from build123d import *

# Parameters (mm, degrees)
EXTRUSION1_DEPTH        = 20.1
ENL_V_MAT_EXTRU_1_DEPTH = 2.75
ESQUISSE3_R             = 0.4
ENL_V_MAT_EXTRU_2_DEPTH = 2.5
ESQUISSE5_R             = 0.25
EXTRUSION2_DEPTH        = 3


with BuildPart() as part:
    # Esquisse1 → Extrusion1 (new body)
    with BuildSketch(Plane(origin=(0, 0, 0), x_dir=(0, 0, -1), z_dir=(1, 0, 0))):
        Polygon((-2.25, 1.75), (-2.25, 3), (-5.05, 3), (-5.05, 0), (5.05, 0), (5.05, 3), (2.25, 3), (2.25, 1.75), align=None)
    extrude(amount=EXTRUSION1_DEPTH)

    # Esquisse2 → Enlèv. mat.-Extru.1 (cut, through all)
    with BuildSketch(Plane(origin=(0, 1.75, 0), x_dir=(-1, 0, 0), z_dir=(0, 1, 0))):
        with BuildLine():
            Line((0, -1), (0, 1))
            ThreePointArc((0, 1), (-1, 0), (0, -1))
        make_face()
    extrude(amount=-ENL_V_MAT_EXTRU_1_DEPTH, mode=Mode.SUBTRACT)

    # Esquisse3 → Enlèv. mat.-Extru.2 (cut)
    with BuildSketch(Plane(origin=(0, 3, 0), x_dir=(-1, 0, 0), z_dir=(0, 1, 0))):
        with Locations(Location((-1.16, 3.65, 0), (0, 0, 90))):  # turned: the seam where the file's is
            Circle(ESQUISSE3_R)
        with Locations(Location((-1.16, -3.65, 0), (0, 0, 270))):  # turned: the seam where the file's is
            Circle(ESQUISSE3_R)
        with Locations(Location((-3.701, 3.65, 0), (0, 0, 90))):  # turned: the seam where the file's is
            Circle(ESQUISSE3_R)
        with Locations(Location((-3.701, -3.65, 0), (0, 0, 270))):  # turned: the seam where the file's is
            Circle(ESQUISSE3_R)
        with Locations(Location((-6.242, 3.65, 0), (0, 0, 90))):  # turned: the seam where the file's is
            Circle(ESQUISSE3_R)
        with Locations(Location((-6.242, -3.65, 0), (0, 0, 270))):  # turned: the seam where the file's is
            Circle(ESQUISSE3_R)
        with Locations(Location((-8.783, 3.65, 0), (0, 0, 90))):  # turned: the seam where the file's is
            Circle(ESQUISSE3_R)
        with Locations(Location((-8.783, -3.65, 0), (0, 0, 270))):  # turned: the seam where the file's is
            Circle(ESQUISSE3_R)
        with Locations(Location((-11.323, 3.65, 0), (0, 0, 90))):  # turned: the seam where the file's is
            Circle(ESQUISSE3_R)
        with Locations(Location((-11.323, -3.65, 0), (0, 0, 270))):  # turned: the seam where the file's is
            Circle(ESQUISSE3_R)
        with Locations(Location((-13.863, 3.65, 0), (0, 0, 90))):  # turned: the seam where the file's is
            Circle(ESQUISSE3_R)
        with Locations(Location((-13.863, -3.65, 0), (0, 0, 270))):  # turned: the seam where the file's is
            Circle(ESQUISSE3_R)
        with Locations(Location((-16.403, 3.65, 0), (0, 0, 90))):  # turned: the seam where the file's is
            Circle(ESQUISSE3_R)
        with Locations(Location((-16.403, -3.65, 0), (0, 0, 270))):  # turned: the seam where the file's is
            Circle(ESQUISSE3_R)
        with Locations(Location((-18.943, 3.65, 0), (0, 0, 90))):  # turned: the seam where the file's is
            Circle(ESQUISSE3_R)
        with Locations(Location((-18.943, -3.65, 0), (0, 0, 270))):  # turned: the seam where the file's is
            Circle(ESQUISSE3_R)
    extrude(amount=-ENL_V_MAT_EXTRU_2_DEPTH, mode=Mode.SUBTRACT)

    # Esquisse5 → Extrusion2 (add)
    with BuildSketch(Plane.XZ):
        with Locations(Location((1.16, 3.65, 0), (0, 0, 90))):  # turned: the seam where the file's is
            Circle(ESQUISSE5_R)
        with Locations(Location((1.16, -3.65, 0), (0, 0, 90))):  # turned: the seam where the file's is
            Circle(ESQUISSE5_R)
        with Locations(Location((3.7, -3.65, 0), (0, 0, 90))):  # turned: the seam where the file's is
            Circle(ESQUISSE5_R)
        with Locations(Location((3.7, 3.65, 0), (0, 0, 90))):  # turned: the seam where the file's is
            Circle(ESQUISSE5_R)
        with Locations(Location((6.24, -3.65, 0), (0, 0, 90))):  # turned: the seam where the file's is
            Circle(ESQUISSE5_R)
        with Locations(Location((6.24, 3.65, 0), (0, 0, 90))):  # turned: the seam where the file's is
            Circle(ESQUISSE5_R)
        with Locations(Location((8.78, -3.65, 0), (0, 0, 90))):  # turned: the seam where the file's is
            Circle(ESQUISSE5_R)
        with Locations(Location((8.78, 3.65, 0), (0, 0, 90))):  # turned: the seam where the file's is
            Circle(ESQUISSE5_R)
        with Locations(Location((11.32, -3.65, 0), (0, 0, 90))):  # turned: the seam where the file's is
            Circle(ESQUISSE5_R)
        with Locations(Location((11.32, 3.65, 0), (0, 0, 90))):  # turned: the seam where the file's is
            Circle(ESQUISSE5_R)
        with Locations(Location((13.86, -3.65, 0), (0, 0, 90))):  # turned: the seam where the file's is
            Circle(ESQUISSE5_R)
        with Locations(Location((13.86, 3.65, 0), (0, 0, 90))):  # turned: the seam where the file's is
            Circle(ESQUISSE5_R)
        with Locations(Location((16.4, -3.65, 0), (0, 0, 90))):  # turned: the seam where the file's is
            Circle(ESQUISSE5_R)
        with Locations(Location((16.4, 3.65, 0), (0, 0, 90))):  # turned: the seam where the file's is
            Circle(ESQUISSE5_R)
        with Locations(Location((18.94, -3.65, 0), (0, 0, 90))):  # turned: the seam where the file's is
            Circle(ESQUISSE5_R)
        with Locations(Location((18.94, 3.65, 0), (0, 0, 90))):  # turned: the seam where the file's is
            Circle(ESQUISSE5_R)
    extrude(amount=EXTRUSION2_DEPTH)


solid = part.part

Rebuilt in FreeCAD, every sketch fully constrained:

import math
import FreeCAD as App
import Part
import Sketcher

V = App.Vector
Q = App.Units.Quantity

doc = App.newDocument("Part")
body = doc.addObject("PartDesign::Body", "Body")

# Sketch on YZ plane
sketch1 = doc.addObject("Sketcher::SketchObject", "Sketch")
body.addObject(sketch1)
sketch1.AttachmentSupport = (doc.YZ_Plane, [""])
sketch1.MapMode = "FlatFace"
sketch1.addGeometry([
    Part.LineSegment(V(1.75, 2.25, 0), V(3, 2.25, 0)),  # 0
    Part.LineSegment(V(3, 2.25, 0), V(3, 5.05, 0)),  # 1
    Part.LineSegment(V(3, 5.05, 0), V(0, 5.05, 0)),  # 2
    Part.LineSegment(V(0, 5.05, 0), V(0, -5.05, 0)),  # 3
    Part.LineSegment(V(0, -5.05, 0), V(3, -5.05, 0)),  # 4
    Part.LineSegment(V(3, -5.05, 0), V(3, -2.25, 0)),  # 5
    Part.LineSegment(V(3, -2.25, 0), V(1.75, -2.25, 0)),  # 6
    Part.LineSegment(V(1.75, -2.25, 0), V(1.75, 2.25, 0)),  # 7
], False)
sketch1.addConstraint([
    Sketcher.Constraint("Coincident", 0, 2, 1, 1),
    Sketcher.Constraint("Coincident", 1, 2, 2, 1),
    Sketcher.Constraint("Coincident", 2, 2, 3, 1),
    Sketcher.Constraint("Coincident", 3, 2, 4, 1),
    Sketcher.Constraint("Coincident", 4, 2, 5, 1),
    Sketcher.Constraint("Coincident", 5, 2, 6, 1),
    Sketcher.Constraint("Coincident", 6, 2, 7, 1),
    Sketcher.Constraint("Coincident", 7, 2, 0, 1),
    Sketcher.Constraint("Horizontal", 0),
    Sketcher.Constraint("Vertical", 1),
    Sketcher.Constraint("Horizontal", 2),
    Sketcher.Constraint("Vertical", 3),
    Sketcher.Constraint("Horizontal", 4),
    Sketcher.Constraint("Vertical", 5),
    Sketcher.Constraint("Horizontal", 6),
    Sketcher.Constraint("Vertical", 7),
    Sketcher.Constraint("Symmetric", 2, 2, 3, 2, -1, 1),
    Sketcher.Constraint("Symmetric", 0, 2, 5, 2, -1),
    Sketcher.Constraint("DistanceX", 2, 2, 2, 1, Q("3 mm")),
    Sketcher.Constraint("DistanceY", 1, 1, 1, 2, Q("2.8 mm")),
    Sketcher.Constraint("DistanceY", 3, 2, 3, 1, Q("10.1 mm")),
    Sketcher.Constraint("DistanceX", 0, 1, 0, 2, Q("1.25 mm")),
])
pad1 = doc.addObject("PartDesign::Pad", "Pad")
body.addObject(pad1)
pad1.Profile = sketch1
pad1.Length = 20.1

# Sketch on XZ plane
sketch2 = doc.addObject("Sketcher::SketchObject", "Sketch001")
body.addObject(sketch2)
sketch2.AttachmentSupport = (doc.XZ_Plane, [""])
sketch2.MapMode = "FlatFace"
sketch2.AttachmentOffset = App.Placement(V(0, 0, -1.75), App.Rotation())
sketch2.addGeometry([
    Part.LineSegment(V(0, -1, 0), V(0, 1, 0)),
    Part.ArcOfCircle(Part.Circle(V(0, 0, 0), V(0, 0, 1), 1), math.radians(-90), math.radians(90)),
], False)
sketch2.addConstraint([
    Sketcher.Constraint("Coincident", 0, 1, 1, 1),
    Sketcher.Constraint("Coincident", 1, 2, 0, 2),
    Sketcher.Constraint("Vertical", 0),
    Sketcher.Constraint("Coincident", 1, 3, -1, 1),
    Sketcher.Constraint("PointOnObject", 0, 1, -2),
    Sketcher.Constraint("Radius", 1, Q("1 mm")),
])
pocket1 = doc.addObject("PartDesign::Pocket", "Pocket")
body.addObject(pocket1)
pocket1.Profile = sketch2
pocket1.Type = "ThroughAll"
pocket1.Reversed = True

# Sketch on XZ plane
sketch3 = doc.addObject("Sketcher::SketchObject", "Sketch002")
body.addObject(sketch3)
sketch3.AttachmentSupport = (doc.XZ_Plane, [""])
sketch3.MapMode = "FlatFace"
sketch3.AttachmentOffset = App.Placement(V(0, 0, -3), App.Rotation())
sketch3.addGeometry([
    Part.Circle(V(1.16, 3.65, 0), V(0, 0, 1), 0.4),  # 0
    Part.Circle(V(1.16, -3.65, 0), V(0, 0, 1), 0.4),  # 1
    Part.Circle(V(3.701, 3.65, 0), V(0, 0, 1), 0.4),  # 2
    Part.Circle(V(3.701, -3.65, 0), V(0, 0, 1), 0.4),  # 3
    Part.Circle(V(6.242, 3.65, 0), V(0, 0, 1), 0.4),  # 4
    Part.Circle(V(6.242, -3.65, 0), V(0, 0, 1), 0.4),  # 5
    Part.Circle(V(8.783, 3.65, 0), V(0, 0, 1), 0.4),  # 6
    Part.Circle(V(8.783, -3.65, 0), V(0, 0, 1), 0.4),  # 7
    Part.Circle(V(11.323, 3.65, 0), V(0, 0, 1), 0.4),  # 8
    Part.Circle(V(11.323, -3.65, 0), V(0, 0, 1), 0.4),  # 9
    Part.Circle(V(13.863, 3.65, 0), V(0, 0, 1), 0.4),  # 10
    Part.Circle(V(13.863, -3.65, 0), V(0, 0, 1), 0.4),  # 11
    Part.Circle(V(16.403, 3.65, 0), V(0, 0, 1), 0.4),  # 12
    Part.Circle(V(16.403, -3.65, 0), V(0, 0, 1), 0.4),  # 13
    Part.Circle(V(18.943, 3.65, 0), V(0, 0, 1), 0.4),  # 14
    Part.Circle(V(18.943, -3.65, 0), V(0, 0, 1), 0.4),  # 15
], False)
sketch3.addConstraint([
    Sketcher.Constraint("Equal", 0, 1),
    Sketcher.Constraint("Equal", 1, 2),
    Sketcher.Constraint("Equal", 2, 3),
    Sketcher.Constraint("Equal", 3, 4),
    Sketcher.Constraint("Equal", 4, 5),
    Sketcher.Constraint("Equal", 5, 6),
    Sketcher.Constraint("Equal", 6, 7),
    Sketcher.Constraint("Equal", 7, 8),
    Sketcher.Constraint("Equal", 8, 9),
    Sketcher.Constraint("Equal", 9, 10),
    Sketcher.Constraint("Equal", 10, 11),
    Sketcher.Constraint("Equal", 11, 12),
    Sketcher.Constraint("Equal", 12, 13),
    Sketcher.Constraint("Equal", 13, 14),
    Sketcher.Constraint("Equal", 14, 15),
    Sketcher.Constraint("Symmetric", 0, 3, 1, 3, -1),
    Sketcher.Constraint("Symmetric", 2, 3, 3, 3, -1),
    Sketcher.Constraint("Symmetric", 4, 3, 5, 3, -1),
    Sketcher.Constraint("Symmetric", 6, 3, 7, 3, -1),
    Sketcher.Constraint("Symmetric", 8, 3, 9, 3, -1),
    Sketcher.Constraint("Symmetric", 10, 3, 11, 3, -1),
    Sketcher.Constraint("Symmetric", 12, 3, 13, 3, -1),
    Sketcher.Constraint("Symmetric", 14, 3, 15, 3, -1),
    Sketcher.Constraint("Horizontal", 0, 3, 2, 3),
    Sketcher.Constraint("Horizontal", 2, 3, 4, 3),
    Sketcher.Constraint("Horizontal", 4, 3, 6, 3),
    Sketcher.Constraint("Horizontal", 6, 3, 8, 3),
    Sketcher.Constraint("Horizontal", 8, 3, 10, 3),
    Sketcher.Constraint("Horizontal", 10, 3, 12, 3),
    Sketcher.Constraint("Horizontal", 12, 3, 14, 3),
    Sketcher.Constraint("Diameter", 0, Q("0.8 mm")),
    Sketcher.Constraint("DistanceY", 1, 3, 0, 3, Q("7.3 mm")),
    Sketcher.Constraint("DistanceX", -1, 1, 0, 3, Q("1.16 mm")),
    Sketcher.Constraint("DistanceX", 6, 3, 8, 3, Q("2.54 mm")),
    Sketcher.Constraint("DistanceX", 8, 3, 10, 3, Q("2.54 mm")),
    Sketcher.Constraint("DistanceX", 10, 3, 12, 3, Q("2.54 mm")),
    Sketcher.Constraint("DistanceX", 12, 3, 14, 3, Q("2.54 mm")),
    Sketcher.Constraint("DistanceX", -1, 1, 2, 3, Q("3.701 mm")),
    Sketcher.Constraint("DistanceX", -1, 1, 4, 3, Q("6.242 mm")),
    Sketcher.Constraint("DistanceX", -1, 1, 6, 3, Q("8.783 mm")),
])
pocket2 = doc.addObject("PartDesign::Pocket", "Pocket001")
body.addObject(pocket2)
pocket2.Profile = sketch3
pocket2.Length = 2.5
pocket2.Reversed = True

# Sketch on XZ plane
sketch4 = doc.addObject("Sketcher::SketchObject", "Sketch003")
body.addObject(sketch4)
sketch4.AttachmentSupport = (doc.XZ_Plane, [""])
sketch4.MapMode = "FlatFace"
sketch4.addGeometry([
    Part.Circle(V(1.16, 3.65, 0), V(0, 0, 1), 0.25),  # 0
    Part.Circle(V(1.16, -3.65, 0), V(0, 0, 1), 0.25),  # 1
    Part.Circle(V(3.7, -3.65, 0), V(0, 0, 1), 0.25),  # 2
    Part.Circle(V(3.7, 3.65, 0), V(0, 0, 1), 0.25),  # 3
    Part.Circle(V(6.24, -3.65, 0), V(0, 0, 1), 0.25),  # 4
    Part.Circle(V(6.24, 3.65, 0), V(0, 0, 1), 0.25),  # 5
    Part.Circle(V(8.78, -3.65, 0), V(0, 0, 1), 0.25),  # 6
    Part.Circle(V(8.78, 3.65, 0), V(0, 0, 1), 0.25),  # 7
    Part.Circle(V(11.32, -3.65, 0), V(0, 0, 1), 0.25),  # 8
    Part.Circle(V(11.32, 3.65, 0), V(0, 0, 1), 0.25),  # 9
    Part.Circle(V(13.86, -3.65, 0), V(0, 0, 1), 0.25),  # 10
    Part.Circle(V(13.86, 3.65, 0), V(0, 0, 1), 0.25),  # 11
    Part.Circle(V(16.4, -3.65, 0), V(0, 0, 1), 0.25),  # 12
    Part.Circle(V(16.4, 3.65, 0), V(0, 0, 1), 0.25),  # 13
    Part.Circle(V(18.94, -3.65, 0), V(0, 0, 1), 0.25),  # 14
    Part.Circle(V(18.94, 3.65, 0), V(0, 0, 1), 0.25),  # 15
], False)
sketch4.addConstraint([
    Sketcher.Constraint("Equal", 0, 1),
    Sketcher.Constraint("Equal", 1, 2),
    Sketcher.Constraint("Equal", 2, 3),
    Sketcher.Constraint("Equal", 3, 4),
    Sketcher.Constraint("Equal", 4, 5),
    Sketcher.Constraint("Equal", 5, 6),
    Sketcher.Constraint("Equal", 6, 7),
    Sketcher.Constraint("Equal", 7, 8),
    Sketcher.Constraint("Equal", 8, 9),
    Sketcher.Constraint("Equal", 9, 10),
    Sketcher.Constraint("Equal", 10, 11),
    Sketcher.Constraint("Equal", 11, 12),
    Sketcher.Constraint("Equal", 12, 13),
    Sketcher.Constraint("Equal", 13, 14),
    Sketcher.Constraint("Equal", 14, 15),
    Sketcher.Constraint("Symmetric", 0, 3, 1, 3, -1),
    Sketcher.Constraint("Symmetric", 2, 3, 3, 3, -1),
    Sketcher.Constraint("Symmetric", 4, 3, 5, 3, -1),
    Sketcher.Constraint("Symmetric", 6, 3, 7, 3, -1),
    Sketcher.Constraint("Symmetric", 8, 3, 9, 3, -1),
    Sketcher.Constraint("Symmetric", 10, 3, 11, 3, -1),
    Sketcher.Constraint("Symmetric", 12, 3, 13, 3, -1),
    Sketcher.Constraint("Symmetric", 14, 3, 15, 3, -1),
    Sketcher.Constraint("Horizontal", 1, 3, 2, 3),
    Sketcher.Constraint("Horizontal", 2, 3, 4, 3),
    Sketcher.Constraint("Horizontal", 4, 3, 6, 3),
    Sketcher.Constraint("Horizontal", 6, 3, 8, 3),
    Sketcher.Constraint("Horizontal", 8, 3, 10, 3),
    Sketcher.Constraint("Horizontal", 10, 3, 12, 3),
    Sketcher.Constraint("Horizontal", 12, 3, 14, 3),
    Sketcher.Constraint("Diameter", 0, Q("0.5 mm")),
    Sketcher.Constraint("DistanceX", -1, 1, 2, 3, Q("3.7 mm")),
    Sketcher.Constraint("DistanceX", -1, 1, 12, 3, Q("16.4 mm")),
    Sketcher.Constraint("DistanceY", 1, 3, 0, 3, Q("7.3 mm")),
    Sketcher.Constraint("DistanceX", -1, 1, 0, 3, Q("1.16 mm")),
    Sketcher.Constraint("DistanceX", -1, 1, 4, 3, Q("6.24 mm")),
    Sketcher.Constraint("DistanceX", -1, 1, 6, 3, Q("8.78 mm")),
    Sketcher.Constraint("DistanceX", -1, 1, 8, 3, Q("11.32 mm")),
    Sketcher.Constraint("DistanceX", -1, 1, 10, 3, Q("13.86 mm")),
    Sketcher.Constraint("DistanceX", -1, 1, 14, 3, Q("18.94 mm")),
])
pad2 = doc.addObject("PartDesign::Pad", "Pad001")
body.addObject(pad2)
pad2.Profile = sketch4
pad2.Length = 3

doc.recompute()
